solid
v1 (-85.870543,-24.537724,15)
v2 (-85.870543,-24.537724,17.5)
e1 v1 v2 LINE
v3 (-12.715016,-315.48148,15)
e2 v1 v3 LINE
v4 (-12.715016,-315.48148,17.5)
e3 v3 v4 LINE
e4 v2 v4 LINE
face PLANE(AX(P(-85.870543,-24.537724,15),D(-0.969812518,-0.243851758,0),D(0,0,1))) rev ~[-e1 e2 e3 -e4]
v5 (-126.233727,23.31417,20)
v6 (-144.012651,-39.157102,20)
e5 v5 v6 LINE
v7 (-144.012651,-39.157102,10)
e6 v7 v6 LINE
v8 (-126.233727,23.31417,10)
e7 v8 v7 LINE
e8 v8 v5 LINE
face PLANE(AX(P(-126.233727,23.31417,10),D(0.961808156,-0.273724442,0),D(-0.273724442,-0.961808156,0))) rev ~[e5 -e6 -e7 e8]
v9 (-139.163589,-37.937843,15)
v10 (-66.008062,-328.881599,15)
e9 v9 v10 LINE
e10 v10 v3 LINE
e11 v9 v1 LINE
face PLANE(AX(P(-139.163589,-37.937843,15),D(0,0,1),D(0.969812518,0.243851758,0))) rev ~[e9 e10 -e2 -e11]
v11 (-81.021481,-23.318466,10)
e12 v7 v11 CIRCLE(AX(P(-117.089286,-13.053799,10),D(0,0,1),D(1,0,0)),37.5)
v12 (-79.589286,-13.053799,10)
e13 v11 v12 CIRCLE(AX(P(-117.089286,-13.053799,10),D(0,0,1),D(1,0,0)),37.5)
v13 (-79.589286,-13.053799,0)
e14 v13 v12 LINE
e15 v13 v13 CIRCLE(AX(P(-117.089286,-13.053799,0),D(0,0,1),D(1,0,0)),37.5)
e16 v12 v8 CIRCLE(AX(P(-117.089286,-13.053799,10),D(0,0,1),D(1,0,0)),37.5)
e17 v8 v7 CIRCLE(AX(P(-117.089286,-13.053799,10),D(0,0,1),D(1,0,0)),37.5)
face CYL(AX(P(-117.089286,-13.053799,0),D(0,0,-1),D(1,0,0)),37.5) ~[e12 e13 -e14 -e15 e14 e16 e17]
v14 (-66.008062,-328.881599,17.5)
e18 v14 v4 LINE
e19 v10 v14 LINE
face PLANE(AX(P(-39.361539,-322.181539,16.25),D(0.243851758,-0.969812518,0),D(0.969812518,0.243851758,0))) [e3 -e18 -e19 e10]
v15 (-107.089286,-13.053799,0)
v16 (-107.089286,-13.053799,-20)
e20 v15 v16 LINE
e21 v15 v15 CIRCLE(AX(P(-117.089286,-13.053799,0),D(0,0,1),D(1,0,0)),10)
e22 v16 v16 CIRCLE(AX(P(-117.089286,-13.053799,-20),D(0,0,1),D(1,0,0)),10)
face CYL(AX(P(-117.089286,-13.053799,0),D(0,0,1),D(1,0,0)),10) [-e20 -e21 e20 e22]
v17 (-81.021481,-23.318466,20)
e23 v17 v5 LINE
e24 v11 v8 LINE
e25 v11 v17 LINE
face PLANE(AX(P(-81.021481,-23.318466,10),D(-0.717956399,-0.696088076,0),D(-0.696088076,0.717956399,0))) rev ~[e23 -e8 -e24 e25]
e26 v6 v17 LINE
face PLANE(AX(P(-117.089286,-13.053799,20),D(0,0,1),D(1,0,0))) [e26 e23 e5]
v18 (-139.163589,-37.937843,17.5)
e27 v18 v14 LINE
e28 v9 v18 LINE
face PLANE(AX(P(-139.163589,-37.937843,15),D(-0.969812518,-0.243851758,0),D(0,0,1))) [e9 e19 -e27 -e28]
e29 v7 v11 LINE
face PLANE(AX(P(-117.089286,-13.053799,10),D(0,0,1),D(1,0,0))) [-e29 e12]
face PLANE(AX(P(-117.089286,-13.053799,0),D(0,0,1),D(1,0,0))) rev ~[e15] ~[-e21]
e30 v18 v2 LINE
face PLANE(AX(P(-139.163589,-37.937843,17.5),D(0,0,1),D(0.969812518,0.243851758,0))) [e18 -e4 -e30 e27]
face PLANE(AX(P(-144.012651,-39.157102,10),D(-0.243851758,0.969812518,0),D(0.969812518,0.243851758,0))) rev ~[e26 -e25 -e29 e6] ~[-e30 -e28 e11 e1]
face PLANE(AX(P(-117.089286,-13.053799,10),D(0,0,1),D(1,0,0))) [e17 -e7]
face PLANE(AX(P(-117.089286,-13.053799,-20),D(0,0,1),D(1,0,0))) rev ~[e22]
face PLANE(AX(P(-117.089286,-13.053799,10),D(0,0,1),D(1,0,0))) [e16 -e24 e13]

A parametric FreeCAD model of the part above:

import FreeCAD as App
import Part
import Sketcher
from FreeCAD import Vector


def add_polygon(sketch, points):
    """Adds a closed chain of lines whose ends are joined by coincident constraints."""
    first, n = sketch.GeometryCount, len(points)
    for a, b in zip(points, points[1:] + points[:1]):
        sketch.addGeometry(Part.LineSegment(App.Vector(*a, 0), App.Vector(*b, 0)), False)
    for i in range(n):
        sketch.addConstraint(Sketcher.Constraint("Coincident", first + i, 2, first + (i + 1) % n, 1))

doc = App.newDocument("Part")
body = doc.addObject("PartDesign::Body", "Body")

sketch1 = doc.addObject("Sketcher::SketchObject", "Sketch")
body.addObject(sketch1)
sketch1.AttachmentSupport = (doc.XY_Plane, [""])
sketch1.MapMode = "FlatFace"
sketch1.addGeometry(Part.Circle(Vector(-117, -13, 0), Vector(0, 0, 1), 38), False)
sketch1.addConstraint(Sketcher.Constraint("Diameter", 0, 75.0))
sketch1.addConstraint(Sketcher.Constraint("DistanceY", 0, 3, -1, 1, 13.053799))
sketch1.addConstraint(Sketcher.Constraint("DistanceX", 0, 3, -1, 1, 117.089286))
pad1 = doc.addObject("PartDesign::Pad", "Pad")
body.addObject(pad1)
pad1.Profile = sketch1
pad1.Length = 10

sketch2 = doc.addObject("Sketcher::SketchObject", "Sketch001")
body.addObject(sketch2)
sketch2.AttachmentSupport = (doc.XY_Plane, [""])
sketch2.MapMode = "FlatFace"
sketch2.AttachmentOffset = App.Placement(Vector(0, 0, 10), App.Rotation())
add_polygon(sketch2, [(-144, -39), (-81, -23), (-126, 23)])
sketch2.addConstraint(Sketcher.Constraint("Equal", 0, 1))
sketch2.addConstraint(Sketcher.Constraint("Equal", 1, 2))
sketch2.addConstraint(Sketcher.Constraint("DistanceY", 2, 2, -1, 1, 39.157102))
sketch2.addConstraint(Sketcher.Constraint("DistanceX", 0, 2, -1, 1, 81.021481))
sketch2.addConstraint(Sketcher.Constraint("DistanceY", -1, 1, 1, 2, 23.31417))
sketch2.addConstraint(Sketcher.Constraint("DistanceX", 2, 2, -1, 1, 144.012651))
pad2 = doc.addObject("PartDesign::Pad", "Pad001")
body.addObject(pad2)
pad2.Profile = sketch2
pad2.Length = 10

sketch3 = doc.addObject("Sketcher::SketchObject", "Sketch002")
body.addObject(sketch3)
sketch3.Placement = App.Placement(Vector(0.69676, -2.771054, 0), App.Rotation(Vector(0.969812518, 0.243851758, 0), Vector(0, 0, 1), Vector(0.243851758, -0.969812518, 0), "ZXY"))
add_polygon(sketch3, [(-144.2, 17.5), (-144.2, 15), (-89.3, 15), (-89.3, 17.5)])
sketch3.addConstraint(Sketcher.Constraint("Vertical", 0))
sketch3.addConstraint(Sketcher.Constraint("Horizontal", 1))
sketch3.addConstraint(Sketcher.Constraint("Vertical", 2))
sketch3.addConstraint(Sketcher.Constraint("Horizontal", 3))
sketch3.addConstraint(Sketcher.Constraint("DistanceY", 0, 2, 0, 1, 2.5))
sketch3.addConstraint(Sketcher.Constraint("DistanceY", -1, 1, 0, 2, 15.0))
sketch3.addConstraint(Sketcher.Constraint("DistanceX", 0, 2, -1, 1, 144.2138))
sketch3.addConstraint(Sketcher.Constraint("DistanceX", 1, 1, 1, 2, 54.951905))
pad3 = doc.addObject("PartDesign::Pad", "Pad002")
body.addObject(pad3)
pad3.Profile = sketch3
pad3.Length = 300

sketch4 = doc.addObject("Sketcher::SketchObject", "Sketch003")
body.addObject(sketch4)
sketch4.AttachmentSupport = (doc.XY_Plane, [""])
sketch4.MapMode = "FlatFace"
sketch4.addGeometry(Part.Circle(Vector(-117, -13, 0), Vector(0, 0, 1), 10), False)
sketch4.addConstraint(Sketcher.Constraint("Diameter", 0, 20.0))
sketch4.addConstraint(Sketcher.Constraint("DistanceY", 0, 3, -1, 1, 13.053799))
sketch4.addConstraint(Sketcher.Constraint("DistanceX", 0, 3, -1, 1, 117.089286))
pad4 = doc.addObject("PartDesign::Pad", "Pad003")
body.addObject(pad4)
pad4.Profile = sketch4
pad4.Length = 20
pad4.Reversed = True

doc.recompute()
